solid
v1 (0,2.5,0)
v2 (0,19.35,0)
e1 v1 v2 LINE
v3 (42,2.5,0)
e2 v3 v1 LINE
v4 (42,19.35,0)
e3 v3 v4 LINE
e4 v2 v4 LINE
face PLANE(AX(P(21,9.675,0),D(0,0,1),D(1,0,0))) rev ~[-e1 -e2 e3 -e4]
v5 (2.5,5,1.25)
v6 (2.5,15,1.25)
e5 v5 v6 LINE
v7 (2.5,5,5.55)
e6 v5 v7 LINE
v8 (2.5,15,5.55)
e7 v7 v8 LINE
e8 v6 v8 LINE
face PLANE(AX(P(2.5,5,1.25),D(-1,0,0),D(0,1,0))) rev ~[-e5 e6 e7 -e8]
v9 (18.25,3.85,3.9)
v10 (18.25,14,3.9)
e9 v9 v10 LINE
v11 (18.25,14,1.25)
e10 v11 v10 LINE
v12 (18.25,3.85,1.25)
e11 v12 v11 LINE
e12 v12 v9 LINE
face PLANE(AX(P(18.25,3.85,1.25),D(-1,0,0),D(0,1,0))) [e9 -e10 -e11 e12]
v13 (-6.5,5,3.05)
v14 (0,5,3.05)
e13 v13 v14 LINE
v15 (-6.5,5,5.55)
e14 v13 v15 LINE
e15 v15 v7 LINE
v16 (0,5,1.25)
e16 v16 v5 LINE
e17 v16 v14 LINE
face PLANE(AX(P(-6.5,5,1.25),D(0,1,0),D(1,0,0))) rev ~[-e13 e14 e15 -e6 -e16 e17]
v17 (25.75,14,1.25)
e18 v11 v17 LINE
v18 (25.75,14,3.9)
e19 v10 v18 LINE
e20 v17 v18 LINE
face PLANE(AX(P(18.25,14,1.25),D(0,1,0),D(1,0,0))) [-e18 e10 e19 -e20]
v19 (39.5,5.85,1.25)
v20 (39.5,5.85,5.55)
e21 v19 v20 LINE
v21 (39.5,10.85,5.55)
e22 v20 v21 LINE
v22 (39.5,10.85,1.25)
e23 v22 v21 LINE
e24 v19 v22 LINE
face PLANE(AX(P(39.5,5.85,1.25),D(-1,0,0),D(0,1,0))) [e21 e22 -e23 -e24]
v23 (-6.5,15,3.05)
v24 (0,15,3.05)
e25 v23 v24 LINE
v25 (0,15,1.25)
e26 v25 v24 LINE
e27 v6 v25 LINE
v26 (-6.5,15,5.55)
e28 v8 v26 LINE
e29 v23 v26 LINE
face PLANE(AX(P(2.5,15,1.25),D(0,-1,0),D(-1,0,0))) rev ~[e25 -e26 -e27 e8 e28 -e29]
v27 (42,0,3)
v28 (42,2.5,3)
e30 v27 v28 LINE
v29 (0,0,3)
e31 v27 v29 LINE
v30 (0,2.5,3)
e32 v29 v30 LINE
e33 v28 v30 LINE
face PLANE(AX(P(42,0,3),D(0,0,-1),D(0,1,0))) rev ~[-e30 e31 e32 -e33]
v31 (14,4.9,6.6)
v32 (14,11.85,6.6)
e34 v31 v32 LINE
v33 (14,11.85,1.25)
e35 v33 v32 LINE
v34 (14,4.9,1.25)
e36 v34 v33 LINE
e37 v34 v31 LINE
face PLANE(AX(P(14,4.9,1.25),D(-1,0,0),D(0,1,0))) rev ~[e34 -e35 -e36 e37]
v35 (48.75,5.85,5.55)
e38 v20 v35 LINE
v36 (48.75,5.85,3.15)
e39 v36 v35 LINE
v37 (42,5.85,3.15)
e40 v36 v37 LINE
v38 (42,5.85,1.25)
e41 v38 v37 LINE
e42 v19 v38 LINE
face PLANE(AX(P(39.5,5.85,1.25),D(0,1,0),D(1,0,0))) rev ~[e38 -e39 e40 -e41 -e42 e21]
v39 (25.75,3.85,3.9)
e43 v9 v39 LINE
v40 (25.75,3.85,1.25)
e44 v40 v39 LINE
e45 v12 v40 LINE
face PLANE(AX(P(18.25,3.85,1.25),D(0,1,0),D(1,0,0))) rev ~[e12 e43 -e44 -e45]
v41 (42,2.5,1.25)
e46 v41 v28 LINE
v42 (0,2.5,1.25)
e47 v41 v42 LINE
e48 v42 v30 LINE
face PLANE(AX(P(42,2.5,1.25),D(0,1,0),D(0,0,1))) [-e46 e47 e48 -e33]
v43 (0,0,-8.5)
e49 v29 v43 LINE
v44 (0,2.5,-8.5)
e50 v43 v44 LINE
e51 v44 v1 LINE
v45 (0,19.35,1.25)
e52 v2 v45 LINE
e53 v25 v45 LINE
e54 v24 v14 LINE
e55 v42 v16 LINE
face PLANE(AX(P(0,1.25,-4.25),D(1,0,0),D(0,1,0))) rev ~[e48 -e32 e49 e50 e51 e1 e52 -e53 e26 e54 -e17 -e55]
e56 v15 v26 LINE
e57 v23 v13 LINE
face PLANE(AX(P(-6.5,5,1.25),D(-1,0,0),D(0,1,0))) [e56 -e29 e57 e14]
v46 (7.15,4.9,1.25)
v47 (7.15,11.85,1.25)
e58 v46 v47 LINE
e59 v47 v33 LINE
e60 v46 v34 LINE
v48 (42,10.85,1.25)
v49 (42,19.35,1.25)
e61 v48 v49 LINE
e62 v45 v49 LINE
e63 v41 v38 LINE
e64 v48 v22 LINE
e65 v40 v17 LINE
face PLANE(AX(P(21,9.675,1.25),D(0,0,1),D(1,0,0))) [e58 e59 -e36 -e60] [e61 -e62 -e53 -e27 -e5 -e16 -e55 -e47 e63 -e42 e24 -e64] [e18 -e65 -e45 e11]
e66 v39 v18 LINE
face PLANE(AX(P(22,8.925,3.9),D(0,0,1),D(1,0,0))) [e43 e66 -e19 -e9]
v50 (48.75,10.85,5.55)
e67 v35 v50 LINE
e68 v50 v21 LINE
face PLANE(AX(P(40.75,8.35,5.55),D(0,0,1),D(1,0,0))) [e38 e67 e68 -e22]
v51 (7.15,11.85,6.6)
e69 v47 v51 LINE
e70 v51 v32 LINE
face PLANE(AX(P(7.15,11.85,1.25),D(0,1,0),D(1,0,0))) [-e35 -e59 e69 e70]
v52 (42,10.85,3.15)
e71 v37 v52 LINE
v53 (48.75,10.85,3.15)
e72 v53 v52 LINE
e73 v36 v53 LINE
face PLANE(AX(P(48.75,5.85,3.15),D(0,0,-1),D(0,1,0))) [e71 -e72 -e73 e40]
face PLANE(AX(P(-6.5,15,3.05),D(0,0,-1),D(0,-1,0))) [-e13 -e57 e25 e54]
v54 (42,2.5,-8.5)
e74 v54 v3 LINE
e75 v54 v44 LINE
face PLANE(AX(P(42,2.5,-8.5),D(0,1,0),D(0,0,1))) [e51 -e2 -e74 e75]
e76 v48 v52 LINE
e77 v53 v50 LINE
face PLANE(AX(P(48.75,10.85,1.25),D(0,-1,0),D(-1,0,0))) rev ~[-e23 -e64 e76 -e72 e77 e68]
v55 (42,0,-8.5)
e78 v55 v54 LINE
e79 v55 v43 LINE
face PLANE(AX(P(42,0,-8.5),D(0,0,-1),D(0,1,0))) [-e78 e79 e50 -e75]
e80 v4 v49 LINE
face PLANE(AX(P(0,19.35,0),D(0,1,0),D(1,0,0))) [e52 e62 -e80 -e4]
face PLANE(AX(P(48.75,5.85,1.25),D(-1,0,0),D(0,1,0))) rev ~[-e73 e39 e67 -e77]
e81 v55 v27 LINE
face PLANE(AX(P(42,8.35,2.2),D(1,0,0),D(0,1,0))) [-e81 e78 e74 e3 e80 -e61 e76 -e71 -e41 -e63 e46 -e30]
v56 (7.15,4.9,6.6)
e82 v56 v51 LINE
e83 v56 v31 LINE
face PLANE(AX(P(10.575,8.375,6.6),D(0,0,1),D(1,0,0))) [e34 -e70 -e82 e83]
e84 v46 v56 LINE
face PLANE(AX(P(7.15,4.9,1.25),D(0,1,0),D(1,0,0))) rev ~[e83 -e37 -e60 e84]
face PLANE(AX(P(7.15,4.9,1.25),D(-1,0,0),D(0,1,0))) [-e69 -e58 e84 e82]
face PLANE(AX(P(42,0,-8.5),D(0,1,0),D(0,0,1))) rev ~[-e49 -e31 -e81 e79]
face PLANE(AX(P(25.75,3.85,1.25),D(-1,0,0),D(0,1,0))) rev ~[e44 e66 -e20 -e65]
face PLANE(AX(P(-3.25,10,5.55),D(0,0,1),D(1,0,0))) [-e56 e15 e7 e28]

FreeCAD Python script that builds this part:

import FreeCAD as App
import Part
import Sketcher
Q = App.Units.Quantity


def add_polygon(sketch, points):
    """Adds a closed chain of lines whose ends are joined by coincident constraints."""
    first, n = sketch.GeometryCount, len(points)
    for a, b in zip(points, points[1:] + points[:1]):
        sketch.addGeometry(Part.LineSegment(App.Vector(*a, 0), App.Vector(*b, 0)), False)
    for i in range(n):
        sketch.addConstraint(Sketcher.Constraint("Coincident", first + i, 2, first + (i + 1) % n, 1))

doc = App.newDocument("Part")
body = doc.addObject("PartDesign::Body", "Body")

# Sketch on XY plane
sketch1 = body.newObject("Sketcher::SketchObject", "Sketch")
sketch1.AttachmentSupport = (doc.getObject("XY_Plane"), [""])
sketch1.MapMode = "FlatFace"
add_polygon(sketch1, [(0, 19.35), (0, 0), (42, 0), (42, 19.35)])  # lines 0-3
sketch1.addConstraint(Sketcher.Constraint("Vertical", 0))
sketch1.addConstraint(Sketcher.Constraint("Horizontal", 1))
sketch1.addConstraint(Sketcher.Constraint("Vertical", 2))
sketch1.addConstraint(Sketcher.Constraint("Horizontal", 3))
sketch1.addConstraint(Sketcher.Constraint("Coincident", 0, 2, -1, 1))
sketch1.addConstraint(Sketcher.Constraint("DistanceX", 1, 1, 1, 2, Q("42 mm")))
sketch1.addConstraint(Sketcher.Constraint("DistanceY", 0, 2, 0, 1, Q("19.35 mm")))
pad1 = body.newObject("PartDesign::Pad", "Pad")
pad1.Profile = sketch1
pad1.Length = 1.25

# Sketch on YZ plane
sketch2 = body.newObject("Sketcher::SketchObject", "Sketch001")
sketch2.AttachmentSupport = (doc.getObject("YZ_Plane"), [""])
sketch2.MapMode = "FlatFace"
sketch2.AttachmentOffset = App.Placement(App.Vector(0, 0, 42), App.Rotation())
add_polygon(sketch2, [(0, 0), (0, -8.5), (2.5, -8.5), (2.5, 0)])  # lines 0-3
add_polygon(sketch2, [(0, 3), (0, 1.25), (2.5, 1.25), (2.5, 3)])  # lines 4-7
sketch2.addConstraint(Sketcher.Constraint("Vertical", 0))
sketch2.addConstraint(Sketcher.Constraint("Horizontal", 1))
sketch2.addConstraint(Sketcher.Constraint("Vertical", 2))
sketch2.addConstraint(Sketcher.Constraint("Horizontal", 3))
sketch2.addConstraint(Sketcher.Constraint("Vertical", 4))
sketch2.addConstraint(Sketcher.Constraint("Horizontal", 5))
sketch2.addConstraint(Sketcher.Constraint("Vertical", 6))
sketch2.addConstraint(Sketcher.Constraint("Horizontal", 7))
sketch2.addConstraint(Sketcher.Constraint("Coincident", 3, 2, -1, 1))
sketch2.addConstraint(Sketcher.Constraint("PointOnObject", 4, 2, -2))
sketch2.addConstraint(Sketcher.Constraint("Vertical", 2, 2, 5, 2))
sketch2.addConstraint(Sketcher.Constraint("DistanceX", 1, 1, 1, 2, Q("2.5 mm")))
sketch2.addConstraint(Sketcher.Constraint("DistanceY", 0, 2, 0, 1, Q("8.5 mm")))
sketch2.addConstraint(Sketcher.Constraint("DistanceY", -1, 1, 6, 2, Q("3 mm")))
sketch2.addConstraint(Sketcher.Constraint("DistanceY", 4, 2, 4, 1, Q("1.75 mm")))
pad2 = body.newObject("PartDesign::Pad", "Pad001")
pad2.Profile = sketch2
pad2.Length = 42
pad2.Reversed = True

# Sketch on XY plane
sketch3 = body.newObject("Sketcher::SketchObject", "Sketch002")
sketch3.AttachmentSupport = (doc.getObject("XY_Plane"), [""])
sketch3.MapMode = "FlatFace"
sketch3.AttachmentOffset = App.Placement(App.Vector(0, 0, 1.25), App.Rotation())
add_polygon(sketch3, [(39.5, 10.85), (39.5, 5.85), (48.75, 5.85), (48.75, 10.85)])  # lines 0-3
add_polygon(sketch3, [(-6.5, 15), (-6.5, 5), (2.5, 5), (2.5, 15)])  # lines 4-7
sketch3.addConstraint(Sketcher.Constraint("Vertical", 0))
sketch3.addConstraint(Sketcher.Constraint("Horizontal", 1))
sketch3.addConstraint(Sketcher.Constraint("Vertical", 2))
sketch3.addConstraint(Sketcher.Constraint("Horizontal", 3))
sketch3.addConstraint(Sketcher.Constraint("Vertical", 4))
sketch3.addConstraint(Sketcher.Constraint("Horizontal", 5))
sketch3.addConstraint(Sketcher.Constraint("Vertical", 6))
sketch3.addConstraint(Sketcher.Constraint("Horizontal", 7))
sketch3.addConstraint(Sketcher.Constraint("DistanceX", 5, 1, 5, 2, Q("9 mm")))
sketch3.addConstraint(Sketcher.Constraint("DistanceY", 0, 2, 0, 1, Q("5 mm")))
sketch3.addConstraint(Sketcher.Constraint("DistanceY", 4, 2, 4, 1, Q("10 mm")))
sketch3.addConstraint(Sketcher.Constraint("DistanceY", -1, 1, 4, 2, Q("5 mm")))
sketch3.addConstraint(Sketcher.Constraint("DistanceX", 4, 2, 0, 2, Q("46 mm")))
sketch3.addConstraint(Sketcher.Constraint("DistanceX", 1, 1, 1, 2, Q("9.25 mm")))
sketch3.addConstraint(Sketcher.Constraint("DistanceX", -1, 1, 0, 2, Q("39.5 mm")))
sketch3.addConstraint(Sketcher.Constraint("DistanceY", -1, 1, 0, 2, Q("5.85 mm")))
pad3 = body.newObject("PartDesign::Pad", "Pad002")
pad3.Profile = sketch3
pad3.Length = 4.3

# Sketch on YZ plane
sketch4 = body.newObject("Sketcher::SketchObject", "Sketch003")
sketch4.AttachmentSupport = (doc.getObject("YZ_Plane"), [""])
sketch4.MapMode = "FlatFace"
sketch4.AttachmentOffset = App.Placement(App.Vector(0, 0, 48.75), App.Rotation())
add_polygon(sketch4, [(5.85, 3.15), (5.85, 1.25), (10.85, 1.25), (10.85, 3.15)])  # lines 0-3
sketch4.addConstraint(Sketcher.Constraint("Vertical", 0))
sketch4.addConstraint(Sketcher.Constraint("Horizontal", 1))
sketch4.addConstraint(Sketcher.Constraint("Vertical", 2))
sketch4.addConstraint(Sketcher.Constraint("Horizontal", 3))
sketch4.addConstraint(Sketcher.Constraint("DistanceX", 1, 1, 1, 2, Q("5 mm")))
sketch4.addConstraint(Sketcher.Constraint("DistanceY", 0, 2, 0, 1, Q("1.9 mm")))
sketch4.addConstraint(Sketcher.Constraint("DistanceX", -1, 1, 0, 2, Q("5.85 mm")))
sketch4.addConstraint(Sketcher.Constraint("DistanceY", -1, 1, 0, 2, Q("1.25 mm")))
pocket1 = body.newObject("PartDesign::Pocket", "Pocket")
pocket1.Profile = sketch4
pocket1.Length = 6.75

# Sketch on YZ plane
sketch5 = body.newObject("Sketcher::SketchObject", "Sketch004")
sketch5.AttachmentSupport = (doc.getObject("YZ_Plane"), [""])
sketch5.MapMode = "FlatFace"
sketch5.AttachmentOffset = App.Placement(App.Vector(0, 0, -6.5), App.Rotation())
add_polygon(sketch5, [(15, 3.05), (15, 1.25), (5, 1.25), (5, 3.05)])  # lines 0-3
sketch5.addConstraint(Sketcher.Constraint("Vertical", 0))
sketch5.addConstraint(Sketcher.Constraint("Horizontal", 1))
sketch5.addConstraint(Sketcher.Constraint("Vertical", 2))
sketch5.addConstraint(Sketcher.Constraint("Horizontal", 3))
sketch5.addConstraint(Sketcher.Constraint("DistanceX", 1, 2, 1, 1, Q("10 mm")))
sketch5.addConstraint(Sketcher.Constraint("DistanceY", 0, 2, 0, 1, Q("1.8 mm")))
sketch5.addConstraint(Sketcher.Constraint("DistanceX", -1, 1, 0, 2, Q("15 mm")))
sketch5.addConstraint(Sketcher.Constraint("DistanceY", -1, 1, 0, 2, Q("1.25 mm")))
pocket2 = body.newObject("PartDesign::Pocket", "Pocket001")
pocket2.Profile = sketch5
pocket2.Length = 6.5
pocket2.Reversed = True

# Sketch on XY plane
sketch6 = body.newObject("Sketcher::SketchObject", "Sketch005")
sketch6.AttachmentSupport = (doc.getObject("XY_Plane"), [""])
sketch6.MapMode = "FlatFace"
sketch6.AttachmentOffset = App.Placement(App.Vector(0, 0, 1.25), App.Rotation())
add_polygon(sketch6, [(7.15, 11.85), (7.15, 4.9), (14, 4.9), (14, 11.85)])  # lines 0-3
sketch6.addConstraint(Sketcher.Constraint("Vertical", 0))
sketch6.addConstraint(Sketcher.Constraint("Horizontal", 1))
sketch6.addConstraint(Sketcher.Constraint("Vertical", 2))
sketch6.addConstraint(Sketcher.Constraint("Horizontal", 3))
sketch6.addConstraint(Sketcher.Constraint("DistanceX", -1, 1, 1, 2, Q("14 mm")))
sketch6.addConstraint(Sketcher.Constraint("DistanceX", 1, 1, 1, 2, Q("6.85 mm")))
sketch6.addConstraint(Sketcher.Constraint("DistanceY", 0, 2, 0, 1, Q("6.95 mm")))
sketch6.addConstraint(Sketcher.Constraint("DistanceY", -1, 1, 0, 2, Q("4.9 mm")))
pad4 = body.newObject("PartDesign::Pad", "Pad003")
pad4.Profile = sketch6
pad4.Length = 5.35

# Sketch on XY plane
sketch7 = body.newObject("Sketcher::SketchObject", "Sketch006")
sketch7.AttachmentSupport = (doc.getObject("XY_Plane"), [""])
sketch7.MapMode = "FlatFace"
sketch7.AttachmentOffset = App.Placement(App.Vector(0, 0, 1.25), App.Rotation())
add_polygon(sketch7, [(18.25, 14), (18.25, 3.85), (25.75, 3.85), (25.75, 14)])  # lines 0-3
sketch7.addConstraint(Sketcher.Constraint("Vertical", 0))
sketch7.addConstraint(Sketcher.Constraint("Horizontal", 1))
sketch7.addConstraint(Sketcher.Constraint("Vertical", 2))
sketch7.addConstraint(Sketcher.Constraint("Horizontal", 3))
sketch7.addConstraint(Sketcher.Constraint("DistanceX", 1, 1, 1, 2, Q("7.5 mm")))
sketch7.addConstraint(Sketcher.Constraint("DistanceY", -1, 1, 2, 2, Q("14 mm")))
sketch7.addConstraint(Sketcher.Constraint("DistanceY", 0, 2, 0, 1, Q("10.15 mm")))
sketch7.addConstraint(Sketcher.Constraint("DistanceX", -1, 1, 0, 2, Q("18.25 mm")))
pad5 = body.newObject("PartDesign::Pad", "Pad004")
pad5.Profile = sketch7
pad5.Length = 2.65

doc.recompute()
